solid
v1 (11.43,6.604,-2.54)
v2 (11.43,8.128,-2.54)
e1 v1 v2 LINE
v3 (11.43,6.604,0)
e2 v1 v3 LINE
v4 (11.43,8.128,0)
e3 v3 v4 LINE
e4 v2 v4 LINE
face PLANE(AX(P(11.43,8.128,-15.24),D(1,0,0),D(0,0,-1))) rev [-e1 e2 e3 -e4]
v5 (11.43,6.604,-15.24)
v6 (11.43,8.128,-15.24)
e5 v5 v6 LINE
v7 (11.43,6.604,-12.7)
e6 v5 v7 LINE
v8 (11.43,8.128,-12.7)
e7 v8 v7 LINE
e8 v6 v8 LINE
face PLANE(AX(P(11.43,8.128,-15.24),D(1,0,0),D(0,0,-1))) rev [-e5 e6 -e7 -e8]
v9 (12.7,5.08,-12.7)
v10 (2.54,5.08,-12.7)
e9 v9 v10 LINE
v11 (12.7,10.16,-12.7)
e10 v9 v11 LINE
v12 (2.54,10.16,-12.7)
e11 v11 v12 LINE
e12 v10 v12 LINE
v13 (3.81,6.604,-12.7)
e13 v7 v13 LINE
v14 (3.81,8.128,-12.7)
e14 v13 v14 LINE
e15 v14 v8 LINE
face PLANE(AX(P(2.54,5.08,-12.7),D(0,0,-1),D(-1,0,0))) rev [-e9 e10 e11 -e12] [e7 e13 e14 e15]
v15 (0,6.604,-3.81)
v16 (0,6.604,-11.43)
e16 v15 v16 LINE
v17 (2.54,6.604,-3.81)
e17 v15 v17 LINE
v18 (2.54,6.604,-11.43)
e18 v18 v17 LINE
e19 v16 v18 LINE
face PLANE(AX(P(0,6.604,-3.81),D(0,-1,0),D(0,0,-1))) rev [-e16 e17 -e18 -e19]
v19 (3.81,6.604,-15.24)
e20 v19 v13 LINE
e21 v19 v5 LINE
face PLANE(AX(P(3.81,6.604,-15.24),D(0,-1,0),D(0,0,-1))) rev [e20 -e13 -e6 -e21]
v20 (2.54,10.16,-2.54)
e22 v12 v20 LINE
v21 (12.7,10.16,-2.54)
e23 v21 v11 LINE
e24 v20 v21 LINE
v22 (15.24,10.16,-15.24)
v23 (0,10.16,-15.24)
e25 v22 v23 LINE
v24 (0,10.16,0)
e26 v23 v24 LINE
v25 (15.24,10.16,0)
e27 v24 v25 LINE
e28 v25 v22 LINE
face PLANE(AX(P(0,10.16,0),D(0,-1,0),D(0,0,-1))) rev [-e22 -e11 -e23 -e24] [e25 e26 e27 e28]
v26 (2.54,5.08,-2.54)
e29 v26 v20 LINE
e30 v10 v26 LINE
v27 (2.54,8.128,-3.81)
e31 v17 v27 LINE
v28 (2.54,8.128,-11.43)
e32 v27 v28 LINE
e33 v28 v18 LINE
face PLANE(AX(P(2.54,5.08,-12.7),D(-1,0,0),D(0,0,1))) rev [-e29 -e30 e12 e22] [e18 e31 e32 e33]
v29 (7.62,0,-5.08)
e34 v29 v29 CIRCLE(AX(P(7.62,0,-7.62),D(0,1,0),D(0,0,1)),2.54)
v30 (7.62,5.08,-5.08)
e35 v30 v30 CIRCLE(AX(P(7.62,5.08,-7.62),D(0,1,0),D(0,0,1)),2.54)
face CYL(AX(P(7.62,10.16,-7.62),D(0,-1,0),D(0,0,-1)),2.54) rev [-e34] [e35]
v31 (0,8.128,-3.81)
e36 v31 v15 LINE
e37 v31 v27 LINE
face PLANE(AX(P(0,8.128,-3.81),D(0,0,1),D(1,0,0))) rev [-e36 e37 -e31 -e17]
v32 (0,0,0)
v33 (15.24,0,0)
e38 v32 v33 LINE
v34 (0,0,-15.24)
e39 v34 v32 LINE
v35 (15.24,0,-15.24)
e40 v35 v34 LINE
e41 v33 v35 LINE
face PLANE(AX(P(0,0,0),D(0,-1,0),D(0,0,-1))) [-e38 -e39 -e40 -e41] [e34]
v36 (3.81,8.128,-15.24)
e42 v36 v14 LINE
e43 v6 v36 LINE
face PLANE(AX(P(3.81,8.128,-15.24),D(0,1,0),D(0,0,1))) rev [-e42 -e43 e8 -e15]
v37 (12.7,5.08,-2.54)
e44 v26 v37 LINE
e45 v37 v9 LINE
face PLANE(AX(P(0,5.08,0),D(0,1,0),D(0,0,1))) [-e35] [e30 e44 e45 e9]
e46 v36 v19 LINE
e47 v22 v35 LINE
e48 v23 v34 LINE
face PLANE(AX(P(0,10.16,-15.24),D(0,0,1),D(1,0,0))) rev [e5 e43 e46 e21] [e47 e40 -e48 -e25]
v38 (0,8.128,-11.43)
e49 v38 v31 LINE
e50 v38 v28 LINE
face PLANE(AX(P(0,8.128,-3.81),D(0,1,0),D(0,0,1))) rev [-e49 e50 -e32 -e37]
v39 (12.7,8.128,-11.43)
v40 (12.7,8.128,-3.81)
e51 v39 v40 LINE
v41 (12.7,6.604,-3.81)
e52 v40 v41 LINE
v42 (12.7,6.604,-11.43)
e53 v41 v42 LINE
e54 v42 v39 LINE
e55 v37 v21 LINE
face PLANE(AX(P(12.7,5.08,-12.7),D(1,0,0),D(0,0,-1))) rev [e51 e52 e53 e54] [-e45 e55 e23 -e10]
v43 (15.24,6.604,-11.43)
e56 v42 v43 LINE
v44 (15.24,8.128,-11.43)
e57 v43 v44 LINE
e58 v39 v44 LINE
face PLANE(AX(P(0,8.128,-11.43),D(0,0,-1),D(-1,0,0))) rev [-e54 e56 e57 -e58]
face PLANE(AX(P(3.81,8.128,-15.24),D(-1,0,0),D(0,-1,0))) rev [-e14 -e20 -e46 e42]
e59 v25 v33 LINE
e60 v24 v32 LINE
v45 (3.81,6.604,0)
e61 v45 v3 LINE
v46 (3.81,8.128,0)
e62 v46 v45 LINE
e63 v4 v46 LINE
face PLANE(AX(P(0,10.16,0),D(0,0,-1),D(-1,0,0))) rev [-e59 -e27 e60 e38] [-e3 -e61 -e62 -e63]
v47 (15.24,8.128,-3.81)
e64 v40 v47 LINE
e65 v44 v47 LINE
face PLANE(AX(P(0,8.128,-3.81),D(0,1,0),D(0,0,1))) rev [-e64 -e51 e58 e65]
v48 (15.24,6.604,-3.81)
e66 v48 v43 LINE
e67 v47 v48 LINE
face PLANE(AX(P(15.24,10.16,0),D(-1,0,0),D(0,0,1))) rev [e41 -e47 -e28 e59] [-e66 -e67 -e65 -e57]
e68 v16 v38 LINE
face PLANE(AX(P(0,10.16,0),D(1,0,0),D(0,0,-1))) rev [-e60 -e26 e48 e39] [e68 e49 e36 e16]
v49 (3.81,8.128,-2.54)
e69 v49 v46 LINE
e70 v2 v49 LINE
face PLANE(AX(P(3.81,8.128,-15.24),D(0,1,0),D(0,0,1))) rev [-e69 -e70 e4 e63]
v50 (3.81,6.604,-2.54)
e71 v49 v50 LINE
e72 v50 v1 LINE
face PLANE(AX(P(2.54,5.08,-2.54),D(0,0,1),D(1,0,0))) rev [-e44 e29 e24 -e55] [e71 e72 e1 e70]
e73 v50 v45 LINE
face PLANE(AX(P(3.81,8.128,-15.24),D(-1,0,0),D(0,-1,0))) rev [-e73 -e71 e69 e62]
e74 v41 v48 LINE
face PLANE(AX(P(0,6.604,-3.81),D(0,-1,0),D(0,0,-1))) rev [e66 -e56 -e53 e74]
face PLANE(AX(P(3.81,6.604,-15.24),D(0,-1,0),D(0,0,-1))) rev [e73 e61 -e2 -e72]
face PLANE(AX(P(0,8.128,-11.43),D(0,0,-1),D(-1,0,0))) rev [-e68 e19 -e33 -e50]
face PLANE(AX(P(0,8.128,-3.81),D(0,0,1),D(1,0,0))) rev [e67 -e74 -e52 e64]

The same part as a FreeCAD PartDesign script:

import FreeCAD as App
import Part
import Sketcher

V = App.Vector
Q = App.Units.Quantity


def add_polygon(sketch, points):
    """Adds a closed chain of lines whose ends are joined by coincident constraints."""
    first, n = sketch.GeometryCount, len(points)
    for a, b in zip(points, points[1:] + points[:1]):
        sketch.addGeometry(Part.LineSegment(App.Vector(*a, 0), App.Vector(*b, 0)), False)
    for i in range(n):
        sketch.addConstraint(Sketcher.Constraint("Coincident", first + i, 2, first + (i + 1) % n, 1))

doc = App.newDocument("Part")
body = doc.addObject("PartDesign::Body", "Body")

# Sketch on XZ plane
sketch1 = body.newObject("Sketcher::SketchObject", "Sketch")
sketch1.AttachmentSupport = (doc.getObject("XZ_Plane"), [""])
sketch1.MapMode = "FlatFace"
add_polygon(sketch1, [(0, -15), (0, 0), (15, 0), (15, -15)])  # lines 0-3
sketch1.addConstraint(Sketcher.Constraint("Vertical", 0))
sketch1.addConstraint(Sketcher.Constraint("Horizontal", 1))
sketch1.addConstraint(Sketcher.Constraint("Vertical", 2))
sketch1.addConstraint(Sketcher.Constraint("Horizontal", 3))
sketch1.addConstraint(Sketcher.Constraint("Coincident", 0, 2, -1, 1))
sketch1.addConstraint(Sketcher.Constraint("Equal", 3, 0))
sketch1.addConstraint(Sketcher.Constraint("DistanceX", 1, 1, 1, 2, Q("0.6 in")))
pad1 = body.newObject("PartDesign::Pad", "Pad")
pad1.Profile = sketch1
pad1.Length = Q("0.4 in")
pad1.Reversed = True

# Sketch on XZ plane
sketch2 = body.newObject("Sketcher::SketchObject", "Sketch001")
sketch2.AttachmentSupport = (doc.getObject("XZ_Plane"), [""])
sketch2.MapMode = "FlatFace"
sketch2.addGeometry(Part.Circle(V(7.6, -7.6, 0), V(0, 0, 1), 2.5), False)
sketch2.addConstraint(Sketcher.Constraint("Diameter", 0, Q("0.2 in")))
sketch2.addConstraint(Sketcher.Constraint("DistanceX", -1, 1, 0, 3, Q("0.3 in")))
sketch2.addConstraint(Sketcher.Constraint("DistanceY", 0, 3, -1, 1, Q("0.3 in")))
pocket1 = body.newObject("PartDesign::Pocket", "Pocket")
pocket1.Profile = sketch2
pocket1.Length = Q("0.4 in")

# Sketch on XZ plane
sketch3 = body.newObject("Sketcher::SketchObject", "Sketch002")
sketch3.AttachmentSupport = (doc.getObject("XZ_Plane"), [""])
sketch3.MapMode = "FlatFace"
sketch3.AttachmentOffset = App.Placement(V(0, 0, -0.4 * 25.4), App.Rotation())
add_polygon(sketch3, [(3, -13), (3, -3), (13, -3), (13, -13)])  # lines 0-3
sketch3.addConstraint(Sketcher.Constraint("Vertical", 0))
sketch3.addConstraint(Sketcher.Constraint("Horizontal", 1))
sketch3.addConstraint(Sketcher.Constraint("Vertical", 2))
sketch3.addConstraint(Sketcher.Constraint("Horizontal", 3))
sketch3.addConstraint(Sketcher.Constraint("Equal", 3, 0))
sketch3.addConstraint(Sketcher.Constraint("DistanceX", 1, 1, 1, 2, Q("0.4 in")))
sketch3.addConstraint(Sketcher.Constraint("DistanceX", -1, 1, 0, 2, Q("0.1 in")))
sketch3.addConstraint(Sketcher.Constraint("DistanceY", 0, 2, -1, 1, Q("0.1 in")))
pocket2 = body.newObject("PartDesign::Pocket", "Pocket001")
pocket2.Profile = sketch3
pocket2.Length = Q("0.2 in")
pocket2.Reversed = True

# Sketch on XY plane
sketch4 = body.newObject("Sketcher::SketchObject", "Sketch003")
sketch4.AttachmentSupport = (doc.getObject("XY_Plane"), [""])
sketch4.MapMode = "FlatFace"
add_polygon(sketch4, [(3.8, 8.1), (3.8, 6.6), (11.4, 6.6), (11.4, 8.1)])  # lines 0-3
sketch4.addConstraint(Sketcher.Constraint("Vertical", 0))
sketch4.addConstraint(Sketcher.Constraint("Horizontal", 1))
sketch4.addConstraint(Sketcher.Constraint("Vertical", 2))
sketch4.addConstraint(Sketcher.Constraint("Horizontal", 3))
sketch4.addConstraint(Sketcher.Constraint("DistanceX", 1, 1, 1, 2, Q("0.3 in")))
sketch4.addConstraint(Sketcher.Constraint("DistanceY", 0, 2, 0, 1, Q("0.06 in")))
sketch4.addConstraint(Sketcher.Constraint("DistanceX", -1, 1, 0, 2, Q("0.15 in")))
sketch4.addConstraint(Sketcher.Constraint("DistanceY", -1, 1, 0, 2, Q("0.26 in")))
pocket3 = body.newObject("PartDesign::Pocket", "Pocket002")
pocket3.Profile = sketch4
pocket3.Length = Q("0.6 in")

# Sketch on YZ plane
sketch5 = body.newObject("Sketcher::SketchObject", "Sketch004")
sketch5.AttachmentSupport = (doc.getObject("YZ_Plane"), [""])
sketch5.MapMode = "FlatFace"
sketch5.AttachmentOffset = App.Placement(V(0, 0, 0.6 * 25.4), App.Rotation())
add_polygon(sketch5, [(8.1, -3.8), (6.6, -3.8), (6.6, -11.4), (8.1, -11.4)])  # lines 0-3
sketch5.addConstraint(Sketcher.Constraint("Horizontal", 0))
sketch5.addConstraint(Sketcher.Constraint("Vertical", 1))
sketch5.addConstraint(Sketcher.Constraint("Horizontal", 2))
sketch5.addConstraint(Sketcher.Constraint("Vertical", 3))
sketch5.addConstraint(Sketcher.Constraint("DistanceY", 1, 2, 1, 1, Q("0.3 in")))
sketch5.addConstraint(Sketcher.Constraint("DistanceX", 0, 2, 0, 1, Q("0.06 in")))
sketch5.addConstraint(Sketcher.Constraint("DistanceX", -1, 1, 0, 2, Q("0.26 in")))
sketch5.addConstraint(Sketcher.Constraint("DistanceY", 0, 2, -1, 1, Q("0.15 in")))
pocket4 = body.newObject("PartDesign::Pocket", "Pocket003")
pocket4.Profile = sketch5
pocket4.Length = Q("0.6 in")

doc.recompute()
